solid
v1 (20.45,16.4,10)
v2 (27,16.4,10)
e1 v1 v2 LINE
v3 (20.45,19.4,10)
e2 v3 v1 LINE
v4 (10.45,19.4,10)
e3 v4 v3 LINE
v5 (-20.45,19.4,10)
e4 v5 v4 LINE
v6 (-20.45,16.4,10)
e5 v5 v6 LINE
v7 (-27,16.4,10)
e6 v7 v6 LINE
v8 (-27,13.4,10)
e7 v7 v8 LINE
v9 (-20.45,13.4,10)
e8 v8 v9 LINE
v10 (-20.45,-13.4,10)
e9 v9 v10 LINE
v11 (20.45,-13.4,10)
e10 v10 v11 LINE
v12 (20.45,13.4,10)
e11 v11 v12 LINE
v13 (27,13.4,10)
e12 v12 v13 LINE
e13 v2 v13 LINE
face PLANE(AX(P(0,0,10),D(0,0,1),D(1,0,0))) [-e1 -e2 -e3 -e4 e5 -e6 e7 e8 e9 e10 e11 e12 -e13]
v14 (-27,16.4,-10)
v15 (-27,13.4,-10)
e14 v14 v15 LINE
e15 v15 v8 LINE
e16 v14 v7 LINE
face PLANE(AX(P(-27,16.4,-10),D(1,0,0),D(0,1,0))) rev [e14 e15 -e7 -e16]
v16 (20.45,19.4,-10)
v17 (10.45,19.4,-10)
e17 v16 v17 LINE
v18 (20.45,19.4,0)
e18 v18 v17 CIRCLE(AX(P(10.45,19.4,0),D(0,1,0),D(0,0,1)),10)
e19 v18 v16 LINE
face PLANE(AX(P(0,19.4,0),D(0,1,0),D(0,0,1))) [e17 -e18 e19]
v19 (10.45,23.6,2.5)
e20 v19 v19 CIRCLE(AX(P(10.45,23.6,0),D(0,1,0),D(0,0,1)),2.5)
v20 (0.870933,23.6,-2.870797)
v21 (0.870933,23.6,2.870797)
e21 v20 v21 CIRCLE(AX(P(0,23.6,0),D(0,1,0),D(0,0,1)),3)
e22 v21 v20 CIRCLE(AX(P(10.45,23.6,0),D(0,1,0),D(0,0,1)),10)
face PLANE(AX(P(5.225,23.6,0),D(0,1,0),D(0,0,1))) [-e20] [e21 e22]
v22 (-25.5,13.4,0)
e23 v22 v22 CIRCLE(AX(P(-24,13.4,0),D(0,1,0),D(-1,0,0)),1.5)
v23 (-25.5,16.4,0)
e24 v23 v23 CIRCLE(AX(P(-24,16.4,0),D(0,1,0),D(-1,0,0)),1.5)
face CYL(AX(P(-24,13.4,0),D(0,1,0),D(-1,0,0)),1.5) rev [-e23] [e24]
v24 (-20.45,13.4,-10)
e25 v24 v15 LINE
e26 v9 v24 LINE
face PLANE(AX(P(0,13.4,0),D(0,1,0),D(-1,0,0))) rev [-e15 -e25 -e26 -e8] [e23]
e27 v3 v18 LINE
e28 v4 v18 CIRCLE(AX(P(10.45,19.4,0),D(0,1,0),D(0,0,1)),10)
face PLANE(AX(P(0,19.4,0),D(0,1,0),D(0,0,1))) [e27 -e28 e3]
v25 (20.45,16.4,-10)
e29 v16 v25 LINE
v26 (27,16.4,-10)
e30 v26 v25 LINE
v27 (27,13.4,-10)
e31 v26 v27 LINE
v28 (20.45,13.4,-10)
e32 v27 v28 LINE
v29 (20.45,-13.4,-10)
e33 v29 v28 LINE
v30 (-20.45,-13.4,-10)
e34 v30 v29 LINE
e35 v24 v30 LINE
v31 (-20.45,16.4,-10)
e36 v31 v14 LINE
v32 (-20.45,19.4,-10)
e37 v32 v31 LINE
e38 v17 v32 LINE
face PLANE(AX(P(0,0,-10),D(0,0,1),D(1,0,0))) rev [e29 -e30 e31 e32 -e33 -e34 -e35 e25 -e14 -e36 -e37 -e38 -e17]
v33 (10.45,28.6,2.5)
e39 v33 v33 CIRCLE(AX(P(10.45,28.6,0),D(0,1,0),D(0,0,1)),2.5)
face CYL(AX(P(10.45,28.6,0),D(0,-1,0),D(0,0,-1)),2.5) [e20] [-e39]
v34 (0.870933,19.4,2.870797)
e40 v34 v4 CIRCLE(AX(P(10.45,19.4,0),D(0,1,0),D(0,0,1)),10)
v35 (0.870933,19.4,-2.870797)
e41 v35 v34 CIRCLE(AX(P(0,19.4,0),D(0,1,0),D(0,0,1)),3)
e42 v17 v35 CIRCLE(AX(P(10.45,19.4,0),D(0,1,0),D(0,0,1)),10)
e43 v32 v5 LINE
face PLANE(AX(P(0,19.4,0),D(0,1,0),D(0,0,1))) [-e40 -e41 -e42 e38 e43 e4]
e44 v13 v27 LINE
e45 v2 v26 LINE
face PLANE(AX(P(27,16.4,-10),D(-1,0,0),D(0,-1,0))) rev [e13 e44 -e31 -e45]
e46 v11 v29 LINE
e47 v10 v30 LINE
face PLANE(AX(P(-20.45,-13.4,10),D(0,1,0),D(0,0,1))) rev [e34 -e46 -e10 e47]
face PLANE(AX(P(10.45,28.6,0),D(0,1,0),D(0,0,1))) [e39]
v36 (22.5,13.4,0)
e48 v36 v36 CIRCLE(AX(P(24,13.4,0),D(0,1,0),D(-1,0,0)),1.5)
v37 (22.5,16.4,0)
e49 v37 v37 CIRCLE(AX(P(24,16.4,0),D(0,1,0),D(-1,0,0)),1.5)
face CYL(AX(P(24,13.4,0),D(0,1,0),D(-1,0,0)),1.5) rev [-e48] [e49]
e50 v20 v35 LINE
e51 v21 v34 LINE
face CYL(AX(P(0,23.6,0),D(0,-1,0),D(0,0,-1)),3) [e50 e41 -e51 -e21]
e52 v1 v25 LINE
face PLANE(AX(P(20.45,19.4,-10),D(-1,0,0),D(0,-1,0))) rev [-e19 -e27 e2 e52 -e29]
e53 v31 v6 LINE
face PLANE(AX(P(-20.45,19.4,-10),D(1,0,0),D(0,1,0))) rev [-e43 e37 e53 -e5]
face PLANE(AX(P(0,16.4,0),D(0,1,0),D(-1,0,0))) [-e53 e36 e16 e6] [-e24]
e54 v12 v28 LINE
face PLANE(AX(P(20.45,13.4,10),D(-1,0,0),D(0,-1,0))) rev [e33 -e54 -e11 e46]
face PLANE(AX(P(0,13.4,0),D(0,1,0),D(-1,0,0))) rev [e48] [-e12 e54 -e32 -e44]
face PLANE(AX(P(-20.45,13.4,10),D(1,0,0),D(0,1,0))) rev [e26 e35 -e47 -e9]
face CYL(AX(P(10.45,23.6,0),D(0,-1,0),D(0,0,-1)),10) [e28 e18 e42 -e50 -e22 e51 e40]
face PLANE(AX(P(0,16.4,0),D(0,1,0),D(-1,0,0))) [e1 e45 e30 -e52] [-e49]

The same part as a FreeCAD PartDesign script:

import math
import FreeCAD as App
import Part
import Sketcher
from FreeCAD import Vector

doc = App.newDocument("Part")
body = doc.addObject("PartDesign::Body", "Body")

# Sketch on XY plane
sketch1 = doc.addObject("Sketcher::SketchObject", "Sketch")
body.addObject(sketch1)
sketch1.AttachmentSupport = (doc.XY_Plane, [""])
sketch1.MapMode = "FlatFace"
sketch1.addGeometry([
    Part.LineSegment(Vector(-20, 13, 0), Vector(-20, -13, 0)),
    Part.LineSegment(Vector(-20, -13, 0), Vector(20, -13, 0)),
    Part.LineSegment(Vector(20, -13, 0), Vector(20, 13, 0)),
    Part.LineSegment(Vector(20, 13, 0), Vector(-20, 13, 0)),
], False)
sketch1.addConstraint([
    Sketcher.Constraint("Coincident", 0, 2, 1, 1),
    Sketcher.Constraint("Coincident", 1, 2, 2, 1),
    Sketcher.Constraint("Coincident", 2, 2, 3, 1),
    Sketcher.Constraint("Coincident", 3, 2, 0, 1),
    Sketcher.Constraint("Vertical", 0),
    Sketcher.Constraint("Horizontal", 1),
    Sketcher.Constraint("Vertical", 2),
    Sketcher.Constraint("Horizontal", 3),
    Sketcher.Constraint("Symmetric", 0, 2, 2, 2, -1, 1),
    Sketcher.Constraint("DistanceX", 1, 1, 1, 2, 40.9),
    Sketcher.Constraint("DistanceY", 0, 2, 0, 1, 26.8),
])
pad1 = doc.addObject("PartDesign::Pad", "Pad")
body.addObject(pad1)
pad1.Profile = sketch1
pad1.Length = 20
pad1.Midplane = True

# Sketch on XZ plane
sketch2 = doc.addObject("Sketcher::SketchObject", "Sketch001")
body.addObject(sketch2)
sketch2.AttachmentSupport = (doc.XZ_Plane, [""])
sketch2.MapMode = "FlatFace"
sketch2.AttachmentOffset = App.Placement(Vector(0, 0, -13.4), App.Rotation())
sketch2.addGeometry([
    Part.LineSegment(Vector(-27, -10, 0), Vector(-27, 10, 0)),
    Part.LineSegment(Vector(-27, 10, 0), Vector(27, 10, 0)),
    Part.LineSegment(Vector(27, 10, 0), Vector(27, -10, 0)),
    Part.LineSegment(Vector(27, -10, 0), Vector(-27, -10, 0)),
], False)
sketch2.addConstraint([
    Sketcher.Constraint("Coincident", 0, 2, 1, 1),
    Sketcher.Constraint("Coincident", 1, 2, 2, 1),
    Sketcher.Constraint("Coincident", 2, 2, 3, 1),
    Sketcher.Constraint("Coincident", 3, 2, 0, 1),
    Sketcher.Constraint("Vertical", 0),
    Sketcher.Constraint("Horizontal", 1),
    Sketcher.Constraint("Vertical", 2),
    Sketcher.Constraint("Horizontal", 3),
    Sketcher.Constraint("Symmetric", 0, 2, 2, 2, -1, 1),
    Sketcher.Constraint("DistanceX", 1, 1, 1, 2, 54.0),
    Sketcher.Constraint("DistanceY", 0, 1, 0, 2, 20.0),
])
pad2 = doc.addObject("PartDesign::Pad", "Pad001")
body.addObject(pad2)
pad2.Profile = sketch2
pad2.Length = 3
pad2.Reversed = True

# Sketch on XZ plane
sketch3 = doc.addObject("Sketcher::SketchObject", "Sketch002")
body.addObject(sketch3)
sketch3.AttachmentSupport = (doc.XZ_Plane, [""])
sketch3.MapMode = "FlatFace"
sketch3.AttachmentOffset = App.Placement(Vector(0, 0, -16.4), App.Rotation())
sketch3.addGeometry([
    Part.Circle(Vector(-24, 0, 0), Vector(0, 0, 1), 1.5),
    Part.Circle(Vector(24, 0, 0), Vector(0, 0, 1), 1.5),
], False)
sketch3.addConstraint([
    Sketcher.Constraint("Equal", 0, 1),
    Sketcher.Constraint("Symmetric", 0, 3, 1, 3, -1, 1),
    Sketcher.Constraint("PointOnObject", 0, 3, -1),
    Sketcher.Constraint("Diameter", 0, 3.0),
    Sketcher.Constraint("DistanceX", 0, 3, -1, 1, 24.0),
])
pocket1 = doc.addObject("PartDesign::Pocket", "Pocket")
body.addObject(pocket1)
pocket1.Profile = sketch3
pocket1.Length = 3
pocket1.Reversed = True

# Sketch on XZ plane
sketch4 = doc.addObject("Sketcher::SketchObject", "Sketch003")
body.addObject(sketch4)
sketch4.AttachmentSupport = (doc.XZ_Plane, [""])
sketch4.MapMode = "FlatFace"
sketch4.AttachmentOffset = App.Placement(Vector(0, 0, -16.4), App.Rotation())
sketch4.addGeometry([
    Part.LineSegment(Vector(-20, -10, 0), Vector(-20, 10, 0)),
    Part.LineSegment(Vector(-20, 10, 0), Vector(20, 10, 0)),
    Part.LineSegment(Vector(20, 10, 0), Vector(20, -10, 0)),
    Part.LineSegment(Vector(20, -10, 0), Vector(-20, -10, 0)),
], False)
sketch4.addConstraint([
    Sketcher.Constraint("Coincident", 0, 2, 1, 1),
    Sketcher.Constraint("Coincident", 1, 2, 2, 1),
    Sketcher.Constraint("Coincident", 2, 2, 3, 1),
    Sketcher.Constraint("Coincident", 3, 2, 0, 1),
    Sketcher.Constraint("Vertical", 0),
    Sketcher.Constraint("Horizontal", 1),
    Sketcher.Constraint("Vertical", 2),
    Sketcher.Constraint("Horizontal", 3),
    Sketcher.Constraint("Symmetric", 0, 2, 2, 2, -1, 1),
    Sketcher.Constraint("DistanceY", 0, 1, 0, 2, 20.0),
    Sketcher.Constraint("DistanceX", 1, 1, 1, 2, 40.9),
])
pad3 = doc.addObject("PartDesign::Pad", "Pad002")
body.addObject(pad3)
pad3.Profile = sketch4
pad3.Length = 3
pad3.Reversed = True

# Sketch on XZ plane
sketch5 = doc.addObject("Sketcher::SketchObject", "Sketch004")
body.addObject(sketch5)
sketch5.AttachmentSupport = (doc.XZ_Plane, [""])
sketch5.MapMode = "FlatFace"
sketch5.AttachmentOffset = App.Placement(Vector(0, 0, -19.4), App.Rotation())
sketch5.addGeometry([
    Part.ArcOfCircle(Part.Circle(Vector(10.4, 0, 0), Vector(0, 0, 1), 10), math.radians(-163), math.radians(163)),
    Part.ArcOfCircle(Part.Circle(Vector(0, 0, 0), Vector(0, 0, 1), 3), math.radians(73), math.radians(287)),
], False)
sketch5.addConstraint([
    Sketcher.Constraint("Coincident", 0, 1, 1, 2),
    Sketcher.Constraint("Coincident", 1, 1, 0, 2),
    Sketcher.Constraint("Coincident", 1, 3, -1, 1),
    Sketcher.Constraint("PointOnObject", 0, 3, -1),
    Sketcher.Constraint("Radius", 0, 10.0),
    Sketcher.Constraint("Radius", 1, 3.0),
    Sketcher.Constraint("DistanceX", -1, 1, 0, 3, 10.45),
])
pad4 = doc.addObject("PartDesign::Pad", "Pad003")
body.addObject(pad4)
pad4.Profile = sketch5
pad4.Length = 4.2
pad4.Reversed = True

# Sketch on XZ plane
sketch6 = doc.addObject("Sketcher::SketchObject", "Sketch005")
body.addObject(sketch6)
sketch6.AttachmentSupport = (doc.XZ_Plane, [""])
sketch6.MapMode = "FlatFace"
sketch6.AttachmentOffset = App.Placement(Vector(0, 0, -23.6), App.Rotation())
sketch6.addGeometry(Part.Circle(Vector(10.4, 0, 0), Vector(0, 0, 1), 2.5), False)
sketch6.addConstraint([
    Sketcher.Constraint("PointOnObject", 0, 3, -1),
    Sketcher.Constraint("Diameter", 0, 5.0),
    Sketcher.Constraint("DistanceX", -1, 1, 0, 3, 10.45),
])
pad5 = doc.addObject("PartDesign::Pad", "Pad004")
body.addObject(pad5)
pad5.Profile = sketch6
pad5.Length = 5
pad5.Reversed = True

doc.recompute()
